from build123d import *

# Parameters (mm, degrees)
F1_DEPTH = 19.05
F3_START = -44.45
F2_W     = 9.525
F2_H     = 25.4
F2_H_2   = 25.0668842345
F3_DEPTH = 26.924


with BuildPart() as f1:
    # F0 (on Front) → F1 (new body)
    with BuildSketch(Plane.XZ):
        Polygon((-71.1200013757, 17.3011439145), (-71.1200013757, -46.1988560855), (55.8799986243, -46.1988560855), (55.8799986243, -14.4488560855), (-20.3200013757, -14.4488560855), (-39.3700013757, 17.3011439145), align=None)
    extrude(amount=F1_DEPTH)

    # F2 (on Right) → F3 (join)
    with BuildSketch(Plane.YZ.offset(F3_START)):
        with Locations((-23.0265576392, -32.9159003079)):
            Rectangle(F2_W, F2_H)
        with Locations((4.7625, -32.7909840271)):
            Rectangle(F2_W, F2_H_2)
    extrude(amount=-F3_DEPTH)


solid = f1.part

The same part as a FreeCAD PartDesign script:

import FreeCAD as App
import Part
import Sketcher
Q = App.Units.Quantity

doc = App.newDocument("Part")
body = doc.addObject("PartDesign::Body", "Body")

# Sketch on XZ plane
sketch1 = doc.addObject("Sketcher::SketchObject", "Sketch")
body.addObject(sketch1)
sketch1.AttachmentSupport = (doc.XZ_Plane, [""])
sketch1.MapMode = "FlatFace"
sketch1.addGeometry([
    Part.LineSegment(App.Vector(-71, 17, 0), App.Vector(-71, -46, 0)),  # 0
    Part.LineSegment(App.Vector(-71, -46, 0), App.Vector(56, -46, 0)),  # 1
    Part.LineSegment(App.Vector(56, -46, 0), App.Vector(56, -14, 0)),  # 2
    Part.LineSegment(App.Vector(56, -14, 0), App.Vector(-20, -14, 0)),  # 3
    Part.LineSegment(App.Vector(-20, -14, 0), App.Vector(-39, 17, 0)),  # 4
    Part.LineSegment(App.Vector(-39, 17, 0), App.Vector(-71, 17, 0)),  # 5
], False)
sketch1.addConstraint([
    Sketcher.Constraint("Coincident", 0, 2, 1, 1),
    Sketcher.Constraint("Coincident", 1, 2, 2, 1),
    Sketcher.Constraint("Coincident", 2, 2, 3, 1),
    Sketcher.Constraint("Coincident", 3, 2, 4, 1),
    Sketcher.Constraint("Coincident", 4, 2, 5, 1),
    Sketcher.Constraint("Coincident", 5, 2, 0, 1),
    Sketcher.Constraint("Vertical", 0),
    Sketcher.Constraint("Horizontal", 1),
    Sketcher.Constraint("Vertical", 2),
    Sketcher.Constraint("Horizontal", 3),
    Sketcher.Constraint("Horizontal", 5),
    Sketcher.Constraint("Equal", 5, 2),
    Sketcher.Constraint("DistanceX", 1, 1, 1, 2, Q("5 in")),
    Sketcher.Constraint("DistanceX", 3, 2, 3, 1, Q("3 in")),
    Sketcher.Constraint("DistanceY", 0, 2, 0, 1, Q("2.5 in")),
    Sketcher.Constraint("DistanceX", 5, 2, 5, 1, Q("1.25 in")),
    Sketcher.Constraint("DistanceX", 0, 2, -1, 1, Q("2.8000001 in")),
    Sketcher.Constraint("DistanceY", 0, 2, -1, 1, 46.198856),
])
pad1 = doc.addObject("PartDesign::Pad", "Pad")
body.addObject(pad1)
pad1.Profile = sketch1
pad1.Length = Q("0.75 in")

# Sketch on YZ plane
sketch2 = doc.addObject("Sketcher::SketchObject", "Sketch001")
body.addObject(sketch2)
sketch2.AttachmentSupport = (doc.YZ_Plane, [""])
sketch2.MapMode = "FlatFace"
sketch2.AttachmentOffset = App.Placement(App.Vector(0, 0, -1.75 * 25.4), App.Rotation())
sketch2.addGeometry([
    Part.LineSegment(App.Vector(-28, -20, 0), App.Vector(-28, -46, 0)),  # 0
    Part.LineSegment(App.Vector(-28, -46, 0), App.Vector(-18, -46, 0)),  # 1
    Part.LineSegment(App.Vector(-18, -46, 0), App.Vector(-18, -20, 0)),  # 2
    Part.LineSegment(App.Vector(-18, -20, 0), App.Vector(-28, -20, 0)),  # 3
    Part.LineSegment(App.Vector(0, -20, 0), App.Vector(0, -45, 0)),  # 4
    Part.LineSegment(App.Vector(0, -45, 0), App.Vector(10, -45, 0)),  # 5
    Part.LineSegment(App.Vector(10, -45, 0), App.Vector(10, -20, 0)),  # 6
    Part.LineSegment(App.Vector(10, -20, 0), App.Vector(0, -20, 0)),  # 7
], False)
sketch2.addConstraint([
    Sketcher.Constraint("Coincident", 0, 2, 1, 1),
    Sketcher.Constraint("Coincident", 1, 2, 2, 1),
    Sketcher.Constraint("Coincident", 2, 2, 3, 1),
    Sketcher.Constraint("Coincident", 3, 2, 0, 1),
    Sketcher.Constraint("Coincident", 4, 2, 5, 1),
    Sketcher.Constraint("Coincident", 5, 2, 6, 1),
    Sketcher.Constraint("Coincident", 6, 2, 7, 1),
    Sketcher.Constraint("Coincident", 7, 2, 4, 1),
    Sketcher.Constraint("Vertical", 0),
    Sketcher.Constraint("Horizontal", 1),
    Sketcher.Constraint("Vertical", 2),
    Sketcher.Constraint("Horizontal", 3),
    Sketcher.Constraint("Vertical", 4),
    Sketcher.Constraint("Horizontal", 5),
    Sketcher.Constraint("Vertical", 6),
    Sketcher.Constraint("Horizontal", 7),
    Sketcher.Constraint("PointOnObject", 4, 2, -2),
    Sketcher.Constraint("Equal", 3, 5),
    Sketcher.Constraint("DistanceY", 0, 2, 0, 1, Q("1 in")),
    Sketcher.Constraint("DistanceX", 1, 1, 1, 2, Q("0.375 in")),
    Sketcher.Constraint("DistanceY", 0, 2, -1, 1, 45.6159),
    Sketcher.Constraint("DistanceY", 4, 2, 4, 1, 25.066884),
    Sketcher.Constraint("DistanceY", 6, 2, -1, 1, 20.257542),
    Sketcher.Constraint("DistanceX", 0, 2, -1, 1, 27.789058),
])
pad2 = doc.addObject("PartDesign::Pad", "Pad001")
body.addObject(pad2)
pad2.Profile = sketch2
pad2.Length = Q("1.06 in")
pad2.Reversed = True

doc.recompute()
